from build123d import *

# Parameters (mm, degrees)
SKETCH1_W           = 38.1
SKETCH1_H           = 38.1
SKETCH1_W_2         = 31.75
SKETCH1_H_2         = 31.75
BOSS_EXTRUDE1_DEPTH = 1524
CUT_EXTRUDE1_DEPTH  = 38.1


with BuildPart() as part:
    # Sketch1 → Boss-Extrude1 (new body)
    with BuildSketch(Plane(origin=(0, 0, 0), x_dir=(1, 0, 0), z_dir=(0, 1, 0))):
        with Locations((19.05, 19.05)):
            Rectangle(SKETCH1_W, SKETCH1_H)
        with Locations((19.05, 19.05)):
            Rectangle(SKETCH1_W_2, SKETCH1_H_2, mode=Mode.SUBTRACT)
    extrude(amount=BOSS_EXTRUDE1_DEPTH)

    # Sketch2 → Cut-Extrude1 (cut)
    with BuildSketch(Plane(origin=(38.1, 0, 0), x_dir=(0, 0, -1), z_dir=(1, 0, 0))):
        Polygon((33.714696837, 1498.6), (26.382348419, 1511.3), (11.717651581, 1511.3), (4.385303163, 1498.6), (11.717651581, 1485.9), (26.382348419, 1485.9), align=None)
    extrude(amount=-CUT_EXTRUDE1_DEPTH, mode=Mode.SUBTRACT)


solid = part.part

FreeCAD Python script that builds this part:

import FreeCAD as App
import Part
import Sketcher
from FreeCAD import Vector
Q = App.Units.Quantity

doc = App.newDocument("Part")
body = doc.addObject("PartDesign::Body", "Body")

# Sketch on XZ plane
sketch1 = body.newObject("Sketcher::SketchObject", "Sketch")
sketch1.AttachmentSupport = (doc.getObject("XZ_Plane"), [""])
sketch1.MapMode = "FlatFace"
sketch1.addGeometry(Part.LineSegment(Vector(0, -38.1, 0), Vector(0, 0, 0)), False)
sketch1.addGeometry(Part.LineSegment(Vector(0, 0, 0), Vector(38.1, 0, 0)), False)
sketch1.addGeometry(Part.LineSegment(Vector(38.1, 0, 0), Vector(38.1, -38.1, 0)), False)
sketch1.addGeometry(Part.LineSegment(Vector(38.1, -38.1, 0), Vector(0, -38.1, 0)), False)
sketch1.addGeometry(Part.LineSegment(Vector(34.925, -3.175, 0), Vector(3.175, -3.175, 0)), False)
sketch1.addGeometry(Part.LineSegment(Vector(3.175, -3.175, 0), Vector(3.175, -34.925, 0)), False)
sketch1.addGeometry(Part.LineSegment(Vector(3.175, -34.925, 0), Vector(34.925, -34.925, 0)), False)
sketch1.addGeometry(Part.LineSegment(Vector(34.925, -34.925, 0), Vector(34.925, -3.175, 0)), False)
sketch1.addConstraint(Sketcher.Constraint("Coincident", 0, 2, 1, 1))
sketch1.addConstraint(Sketcher.Constraint("Coincident", 1, 2, 2, 1))
sketch1.addConstraint(Sketcher.Constraint("Coincident", 2, 2, 3, 1))
sketch1.addConstraint(Sketcher.Constraint("Coincident", 3, 2, 0, 1))
sketch1.addConstraint(Sketcher.Constraint("Coincident", 4, 2, 5, 1))
sketch1.addConstraint(Sketcher.Constraint("Coincident", 5, 2, 6, 1))
sketch1.addConstraint(Sketcher.Constraint("Coincident", 6, 2, 7, 1))
sketch1.addConstraint(Sketcher.Constraint("Coincident", 7, 2, 4, 1))
sketch1.addConstraint(Sketcher.Constraint("Vertical", 0))
sketch1.addConstraint(Sketcher.Constraint("Horizontal", 1))
sketch1.addConstraint(Sketcher.Constraint("Vertical", 2))
sketch1.addConstraint(Sketcher.Constraint("Horizontal", 3))
sketch1.addConstraint(Sketcher.Constraint("Horizontal", 4))
sketch1.addConstraint(Sketcher.Constraint("Vertical", 5))
sketch1.addConstraint(Sketcher.Constraint("Horizontal", 6))
sketch1.addConstraint(Sketcher.Constraint("Vertical", 7))
sketch1.addConstraint(Sketcher.Constraint("Coincident", 0, 2, -1, 1))
sketch1.addConstraint(Sketcher.Constraint("Equal", 3, 0))
sketch1.addConstraint(Sketcher.Constraint("Equal", 6, 5))
sketch1.addConstraint(Sketcher.Constraint("DistanceX", 1, 1, 1, 2, Q("1.5 in")))
sketch1.addConstraint(Sketcher.Constraint("DistanceX", 4, 2, 4, 1, Q("1.25 in")))
sketch1.addConstraint(Sketcher.Constraint("DistanceX", -1, 1, 4, 2, Q("0.125 in")))
sketch1.addConstraint(Sketcher.Constraint("DistanceY", 4, 2, -1, 1, Q("0.125 in")))
pad1 = body.newObject("PartDesign::Pad", "Pad")
pad1.Profile = sketch1
pad1.Length = Q("60 in")
pad1.Reversed = True

# Sketch on YZ plane
sketch2 = body.newObject("Sketcher::SketchObject", "Sketch001")
sketch2.AttachmentSupport = (doc.getObject("YZ_Plane"), [""])
sketch2.MapMode = "FlatFace"
sketch2.AttachmentOffset = App.Placement(Vector(0, 0, 1.5 * 25.4), App.Rotation())
sketch2.addGeometry(Part.LineSegment(Vector(1498.6, -33.714697, 0), Vector(1511.3, -26.382348, 0)), False)
sketch2.addGeometry(Part.LineSegment(Vector(1511.3, -26.382348, 0), Vector(1511.3, -11.717652, 0)), False)
sketch2.addGeometry(Part.LineSegment(Vector(1511.3, -11.717652, 0), Vector(1498.6, -4.385303, 0)), False)
sketch2.addGeometry(Part.LineSegment(Vector(1498.6, -4.385303, 0), Vector(1485.9, -11.717652, 0)), False)
sketch2.addGeometry(Part.LineSegment(Vector(1485.9, -11.717652, 0), Vector(1485.9, -26.382348, 0)), False)
sketch2.addGeometry(Part.LineSegment(Vector(1485.9, -26.382348, 0), Vector(1498.6, -33.714697, 0)), False)
sketch2.addConstraint(Sketcher.Constraint("Coincident", 0, 2, 1, 1))
sketch2.addConstraint(Sketcher.Constraint("Coincident", 1, 2, 2, 1))
sketch2.addConstraint(Sketcher.Constraint("Coincident", 2, 2, 3, 1))
sketch2.addConstraint(Sketcher.Constraint("Coincident", 3, 2, 4, 1))
sketch2.addConstraint(Sketcher.Constraint("Coincident", 4, 2, 5, 1))
sketch2.addConstraint(Sketcher.Constraint("Coincident", 5, 2, 0, 1))
sketch2.addConstraint(Sketcher.Constraint("Vertical", 1))
sketch2.addConstraint(Sketcher.Constraint("Vertical", 4))
sketch2.addConstraint(Sketcher.Constraint("Parallel", 0, 3))
sketch2.addConstraint(Sketcher.Constraint("Parallel", 2, 5))
sketch2.addConstraint(Sketcher.Constraint("Horizontal", 1, 2, 3, 2))
sketch2.addConstraint(Sketcher.Constraint("Horizontal", 0, 2, 4, 2))
sketch2.addConstraint(Sketcher.Constraint("Vertical", 2, 2, 5, 2))
sketch2.addConstraint(Sketcher.Constraint("DistanceX", -1, 1, 2, 2, Q("59 in")))
sketch2.addConstraint(Sketcher.Constraint("Angle", 0, Q("30 deg")))
sketch2.addConstraint(Sketcher.Constraint("DistanceX", 3, 2, 1, 2, Q("1 in")))
sketch2.addConstraint(Sketcher.Constraint("DistanceY", 1, 1, 1, 2, 14.664697))
sketch2.addConstraint(Sketcher.Constraint("DistanceY", 0, 2, -1, 1, 26.382348))
pocket1 = body.newObject("PartDesign::Pocket", "Pocket")
pocket1.Profile = sketch2
pocket1.Length = Q("1.5 in")

doc.recompute()
